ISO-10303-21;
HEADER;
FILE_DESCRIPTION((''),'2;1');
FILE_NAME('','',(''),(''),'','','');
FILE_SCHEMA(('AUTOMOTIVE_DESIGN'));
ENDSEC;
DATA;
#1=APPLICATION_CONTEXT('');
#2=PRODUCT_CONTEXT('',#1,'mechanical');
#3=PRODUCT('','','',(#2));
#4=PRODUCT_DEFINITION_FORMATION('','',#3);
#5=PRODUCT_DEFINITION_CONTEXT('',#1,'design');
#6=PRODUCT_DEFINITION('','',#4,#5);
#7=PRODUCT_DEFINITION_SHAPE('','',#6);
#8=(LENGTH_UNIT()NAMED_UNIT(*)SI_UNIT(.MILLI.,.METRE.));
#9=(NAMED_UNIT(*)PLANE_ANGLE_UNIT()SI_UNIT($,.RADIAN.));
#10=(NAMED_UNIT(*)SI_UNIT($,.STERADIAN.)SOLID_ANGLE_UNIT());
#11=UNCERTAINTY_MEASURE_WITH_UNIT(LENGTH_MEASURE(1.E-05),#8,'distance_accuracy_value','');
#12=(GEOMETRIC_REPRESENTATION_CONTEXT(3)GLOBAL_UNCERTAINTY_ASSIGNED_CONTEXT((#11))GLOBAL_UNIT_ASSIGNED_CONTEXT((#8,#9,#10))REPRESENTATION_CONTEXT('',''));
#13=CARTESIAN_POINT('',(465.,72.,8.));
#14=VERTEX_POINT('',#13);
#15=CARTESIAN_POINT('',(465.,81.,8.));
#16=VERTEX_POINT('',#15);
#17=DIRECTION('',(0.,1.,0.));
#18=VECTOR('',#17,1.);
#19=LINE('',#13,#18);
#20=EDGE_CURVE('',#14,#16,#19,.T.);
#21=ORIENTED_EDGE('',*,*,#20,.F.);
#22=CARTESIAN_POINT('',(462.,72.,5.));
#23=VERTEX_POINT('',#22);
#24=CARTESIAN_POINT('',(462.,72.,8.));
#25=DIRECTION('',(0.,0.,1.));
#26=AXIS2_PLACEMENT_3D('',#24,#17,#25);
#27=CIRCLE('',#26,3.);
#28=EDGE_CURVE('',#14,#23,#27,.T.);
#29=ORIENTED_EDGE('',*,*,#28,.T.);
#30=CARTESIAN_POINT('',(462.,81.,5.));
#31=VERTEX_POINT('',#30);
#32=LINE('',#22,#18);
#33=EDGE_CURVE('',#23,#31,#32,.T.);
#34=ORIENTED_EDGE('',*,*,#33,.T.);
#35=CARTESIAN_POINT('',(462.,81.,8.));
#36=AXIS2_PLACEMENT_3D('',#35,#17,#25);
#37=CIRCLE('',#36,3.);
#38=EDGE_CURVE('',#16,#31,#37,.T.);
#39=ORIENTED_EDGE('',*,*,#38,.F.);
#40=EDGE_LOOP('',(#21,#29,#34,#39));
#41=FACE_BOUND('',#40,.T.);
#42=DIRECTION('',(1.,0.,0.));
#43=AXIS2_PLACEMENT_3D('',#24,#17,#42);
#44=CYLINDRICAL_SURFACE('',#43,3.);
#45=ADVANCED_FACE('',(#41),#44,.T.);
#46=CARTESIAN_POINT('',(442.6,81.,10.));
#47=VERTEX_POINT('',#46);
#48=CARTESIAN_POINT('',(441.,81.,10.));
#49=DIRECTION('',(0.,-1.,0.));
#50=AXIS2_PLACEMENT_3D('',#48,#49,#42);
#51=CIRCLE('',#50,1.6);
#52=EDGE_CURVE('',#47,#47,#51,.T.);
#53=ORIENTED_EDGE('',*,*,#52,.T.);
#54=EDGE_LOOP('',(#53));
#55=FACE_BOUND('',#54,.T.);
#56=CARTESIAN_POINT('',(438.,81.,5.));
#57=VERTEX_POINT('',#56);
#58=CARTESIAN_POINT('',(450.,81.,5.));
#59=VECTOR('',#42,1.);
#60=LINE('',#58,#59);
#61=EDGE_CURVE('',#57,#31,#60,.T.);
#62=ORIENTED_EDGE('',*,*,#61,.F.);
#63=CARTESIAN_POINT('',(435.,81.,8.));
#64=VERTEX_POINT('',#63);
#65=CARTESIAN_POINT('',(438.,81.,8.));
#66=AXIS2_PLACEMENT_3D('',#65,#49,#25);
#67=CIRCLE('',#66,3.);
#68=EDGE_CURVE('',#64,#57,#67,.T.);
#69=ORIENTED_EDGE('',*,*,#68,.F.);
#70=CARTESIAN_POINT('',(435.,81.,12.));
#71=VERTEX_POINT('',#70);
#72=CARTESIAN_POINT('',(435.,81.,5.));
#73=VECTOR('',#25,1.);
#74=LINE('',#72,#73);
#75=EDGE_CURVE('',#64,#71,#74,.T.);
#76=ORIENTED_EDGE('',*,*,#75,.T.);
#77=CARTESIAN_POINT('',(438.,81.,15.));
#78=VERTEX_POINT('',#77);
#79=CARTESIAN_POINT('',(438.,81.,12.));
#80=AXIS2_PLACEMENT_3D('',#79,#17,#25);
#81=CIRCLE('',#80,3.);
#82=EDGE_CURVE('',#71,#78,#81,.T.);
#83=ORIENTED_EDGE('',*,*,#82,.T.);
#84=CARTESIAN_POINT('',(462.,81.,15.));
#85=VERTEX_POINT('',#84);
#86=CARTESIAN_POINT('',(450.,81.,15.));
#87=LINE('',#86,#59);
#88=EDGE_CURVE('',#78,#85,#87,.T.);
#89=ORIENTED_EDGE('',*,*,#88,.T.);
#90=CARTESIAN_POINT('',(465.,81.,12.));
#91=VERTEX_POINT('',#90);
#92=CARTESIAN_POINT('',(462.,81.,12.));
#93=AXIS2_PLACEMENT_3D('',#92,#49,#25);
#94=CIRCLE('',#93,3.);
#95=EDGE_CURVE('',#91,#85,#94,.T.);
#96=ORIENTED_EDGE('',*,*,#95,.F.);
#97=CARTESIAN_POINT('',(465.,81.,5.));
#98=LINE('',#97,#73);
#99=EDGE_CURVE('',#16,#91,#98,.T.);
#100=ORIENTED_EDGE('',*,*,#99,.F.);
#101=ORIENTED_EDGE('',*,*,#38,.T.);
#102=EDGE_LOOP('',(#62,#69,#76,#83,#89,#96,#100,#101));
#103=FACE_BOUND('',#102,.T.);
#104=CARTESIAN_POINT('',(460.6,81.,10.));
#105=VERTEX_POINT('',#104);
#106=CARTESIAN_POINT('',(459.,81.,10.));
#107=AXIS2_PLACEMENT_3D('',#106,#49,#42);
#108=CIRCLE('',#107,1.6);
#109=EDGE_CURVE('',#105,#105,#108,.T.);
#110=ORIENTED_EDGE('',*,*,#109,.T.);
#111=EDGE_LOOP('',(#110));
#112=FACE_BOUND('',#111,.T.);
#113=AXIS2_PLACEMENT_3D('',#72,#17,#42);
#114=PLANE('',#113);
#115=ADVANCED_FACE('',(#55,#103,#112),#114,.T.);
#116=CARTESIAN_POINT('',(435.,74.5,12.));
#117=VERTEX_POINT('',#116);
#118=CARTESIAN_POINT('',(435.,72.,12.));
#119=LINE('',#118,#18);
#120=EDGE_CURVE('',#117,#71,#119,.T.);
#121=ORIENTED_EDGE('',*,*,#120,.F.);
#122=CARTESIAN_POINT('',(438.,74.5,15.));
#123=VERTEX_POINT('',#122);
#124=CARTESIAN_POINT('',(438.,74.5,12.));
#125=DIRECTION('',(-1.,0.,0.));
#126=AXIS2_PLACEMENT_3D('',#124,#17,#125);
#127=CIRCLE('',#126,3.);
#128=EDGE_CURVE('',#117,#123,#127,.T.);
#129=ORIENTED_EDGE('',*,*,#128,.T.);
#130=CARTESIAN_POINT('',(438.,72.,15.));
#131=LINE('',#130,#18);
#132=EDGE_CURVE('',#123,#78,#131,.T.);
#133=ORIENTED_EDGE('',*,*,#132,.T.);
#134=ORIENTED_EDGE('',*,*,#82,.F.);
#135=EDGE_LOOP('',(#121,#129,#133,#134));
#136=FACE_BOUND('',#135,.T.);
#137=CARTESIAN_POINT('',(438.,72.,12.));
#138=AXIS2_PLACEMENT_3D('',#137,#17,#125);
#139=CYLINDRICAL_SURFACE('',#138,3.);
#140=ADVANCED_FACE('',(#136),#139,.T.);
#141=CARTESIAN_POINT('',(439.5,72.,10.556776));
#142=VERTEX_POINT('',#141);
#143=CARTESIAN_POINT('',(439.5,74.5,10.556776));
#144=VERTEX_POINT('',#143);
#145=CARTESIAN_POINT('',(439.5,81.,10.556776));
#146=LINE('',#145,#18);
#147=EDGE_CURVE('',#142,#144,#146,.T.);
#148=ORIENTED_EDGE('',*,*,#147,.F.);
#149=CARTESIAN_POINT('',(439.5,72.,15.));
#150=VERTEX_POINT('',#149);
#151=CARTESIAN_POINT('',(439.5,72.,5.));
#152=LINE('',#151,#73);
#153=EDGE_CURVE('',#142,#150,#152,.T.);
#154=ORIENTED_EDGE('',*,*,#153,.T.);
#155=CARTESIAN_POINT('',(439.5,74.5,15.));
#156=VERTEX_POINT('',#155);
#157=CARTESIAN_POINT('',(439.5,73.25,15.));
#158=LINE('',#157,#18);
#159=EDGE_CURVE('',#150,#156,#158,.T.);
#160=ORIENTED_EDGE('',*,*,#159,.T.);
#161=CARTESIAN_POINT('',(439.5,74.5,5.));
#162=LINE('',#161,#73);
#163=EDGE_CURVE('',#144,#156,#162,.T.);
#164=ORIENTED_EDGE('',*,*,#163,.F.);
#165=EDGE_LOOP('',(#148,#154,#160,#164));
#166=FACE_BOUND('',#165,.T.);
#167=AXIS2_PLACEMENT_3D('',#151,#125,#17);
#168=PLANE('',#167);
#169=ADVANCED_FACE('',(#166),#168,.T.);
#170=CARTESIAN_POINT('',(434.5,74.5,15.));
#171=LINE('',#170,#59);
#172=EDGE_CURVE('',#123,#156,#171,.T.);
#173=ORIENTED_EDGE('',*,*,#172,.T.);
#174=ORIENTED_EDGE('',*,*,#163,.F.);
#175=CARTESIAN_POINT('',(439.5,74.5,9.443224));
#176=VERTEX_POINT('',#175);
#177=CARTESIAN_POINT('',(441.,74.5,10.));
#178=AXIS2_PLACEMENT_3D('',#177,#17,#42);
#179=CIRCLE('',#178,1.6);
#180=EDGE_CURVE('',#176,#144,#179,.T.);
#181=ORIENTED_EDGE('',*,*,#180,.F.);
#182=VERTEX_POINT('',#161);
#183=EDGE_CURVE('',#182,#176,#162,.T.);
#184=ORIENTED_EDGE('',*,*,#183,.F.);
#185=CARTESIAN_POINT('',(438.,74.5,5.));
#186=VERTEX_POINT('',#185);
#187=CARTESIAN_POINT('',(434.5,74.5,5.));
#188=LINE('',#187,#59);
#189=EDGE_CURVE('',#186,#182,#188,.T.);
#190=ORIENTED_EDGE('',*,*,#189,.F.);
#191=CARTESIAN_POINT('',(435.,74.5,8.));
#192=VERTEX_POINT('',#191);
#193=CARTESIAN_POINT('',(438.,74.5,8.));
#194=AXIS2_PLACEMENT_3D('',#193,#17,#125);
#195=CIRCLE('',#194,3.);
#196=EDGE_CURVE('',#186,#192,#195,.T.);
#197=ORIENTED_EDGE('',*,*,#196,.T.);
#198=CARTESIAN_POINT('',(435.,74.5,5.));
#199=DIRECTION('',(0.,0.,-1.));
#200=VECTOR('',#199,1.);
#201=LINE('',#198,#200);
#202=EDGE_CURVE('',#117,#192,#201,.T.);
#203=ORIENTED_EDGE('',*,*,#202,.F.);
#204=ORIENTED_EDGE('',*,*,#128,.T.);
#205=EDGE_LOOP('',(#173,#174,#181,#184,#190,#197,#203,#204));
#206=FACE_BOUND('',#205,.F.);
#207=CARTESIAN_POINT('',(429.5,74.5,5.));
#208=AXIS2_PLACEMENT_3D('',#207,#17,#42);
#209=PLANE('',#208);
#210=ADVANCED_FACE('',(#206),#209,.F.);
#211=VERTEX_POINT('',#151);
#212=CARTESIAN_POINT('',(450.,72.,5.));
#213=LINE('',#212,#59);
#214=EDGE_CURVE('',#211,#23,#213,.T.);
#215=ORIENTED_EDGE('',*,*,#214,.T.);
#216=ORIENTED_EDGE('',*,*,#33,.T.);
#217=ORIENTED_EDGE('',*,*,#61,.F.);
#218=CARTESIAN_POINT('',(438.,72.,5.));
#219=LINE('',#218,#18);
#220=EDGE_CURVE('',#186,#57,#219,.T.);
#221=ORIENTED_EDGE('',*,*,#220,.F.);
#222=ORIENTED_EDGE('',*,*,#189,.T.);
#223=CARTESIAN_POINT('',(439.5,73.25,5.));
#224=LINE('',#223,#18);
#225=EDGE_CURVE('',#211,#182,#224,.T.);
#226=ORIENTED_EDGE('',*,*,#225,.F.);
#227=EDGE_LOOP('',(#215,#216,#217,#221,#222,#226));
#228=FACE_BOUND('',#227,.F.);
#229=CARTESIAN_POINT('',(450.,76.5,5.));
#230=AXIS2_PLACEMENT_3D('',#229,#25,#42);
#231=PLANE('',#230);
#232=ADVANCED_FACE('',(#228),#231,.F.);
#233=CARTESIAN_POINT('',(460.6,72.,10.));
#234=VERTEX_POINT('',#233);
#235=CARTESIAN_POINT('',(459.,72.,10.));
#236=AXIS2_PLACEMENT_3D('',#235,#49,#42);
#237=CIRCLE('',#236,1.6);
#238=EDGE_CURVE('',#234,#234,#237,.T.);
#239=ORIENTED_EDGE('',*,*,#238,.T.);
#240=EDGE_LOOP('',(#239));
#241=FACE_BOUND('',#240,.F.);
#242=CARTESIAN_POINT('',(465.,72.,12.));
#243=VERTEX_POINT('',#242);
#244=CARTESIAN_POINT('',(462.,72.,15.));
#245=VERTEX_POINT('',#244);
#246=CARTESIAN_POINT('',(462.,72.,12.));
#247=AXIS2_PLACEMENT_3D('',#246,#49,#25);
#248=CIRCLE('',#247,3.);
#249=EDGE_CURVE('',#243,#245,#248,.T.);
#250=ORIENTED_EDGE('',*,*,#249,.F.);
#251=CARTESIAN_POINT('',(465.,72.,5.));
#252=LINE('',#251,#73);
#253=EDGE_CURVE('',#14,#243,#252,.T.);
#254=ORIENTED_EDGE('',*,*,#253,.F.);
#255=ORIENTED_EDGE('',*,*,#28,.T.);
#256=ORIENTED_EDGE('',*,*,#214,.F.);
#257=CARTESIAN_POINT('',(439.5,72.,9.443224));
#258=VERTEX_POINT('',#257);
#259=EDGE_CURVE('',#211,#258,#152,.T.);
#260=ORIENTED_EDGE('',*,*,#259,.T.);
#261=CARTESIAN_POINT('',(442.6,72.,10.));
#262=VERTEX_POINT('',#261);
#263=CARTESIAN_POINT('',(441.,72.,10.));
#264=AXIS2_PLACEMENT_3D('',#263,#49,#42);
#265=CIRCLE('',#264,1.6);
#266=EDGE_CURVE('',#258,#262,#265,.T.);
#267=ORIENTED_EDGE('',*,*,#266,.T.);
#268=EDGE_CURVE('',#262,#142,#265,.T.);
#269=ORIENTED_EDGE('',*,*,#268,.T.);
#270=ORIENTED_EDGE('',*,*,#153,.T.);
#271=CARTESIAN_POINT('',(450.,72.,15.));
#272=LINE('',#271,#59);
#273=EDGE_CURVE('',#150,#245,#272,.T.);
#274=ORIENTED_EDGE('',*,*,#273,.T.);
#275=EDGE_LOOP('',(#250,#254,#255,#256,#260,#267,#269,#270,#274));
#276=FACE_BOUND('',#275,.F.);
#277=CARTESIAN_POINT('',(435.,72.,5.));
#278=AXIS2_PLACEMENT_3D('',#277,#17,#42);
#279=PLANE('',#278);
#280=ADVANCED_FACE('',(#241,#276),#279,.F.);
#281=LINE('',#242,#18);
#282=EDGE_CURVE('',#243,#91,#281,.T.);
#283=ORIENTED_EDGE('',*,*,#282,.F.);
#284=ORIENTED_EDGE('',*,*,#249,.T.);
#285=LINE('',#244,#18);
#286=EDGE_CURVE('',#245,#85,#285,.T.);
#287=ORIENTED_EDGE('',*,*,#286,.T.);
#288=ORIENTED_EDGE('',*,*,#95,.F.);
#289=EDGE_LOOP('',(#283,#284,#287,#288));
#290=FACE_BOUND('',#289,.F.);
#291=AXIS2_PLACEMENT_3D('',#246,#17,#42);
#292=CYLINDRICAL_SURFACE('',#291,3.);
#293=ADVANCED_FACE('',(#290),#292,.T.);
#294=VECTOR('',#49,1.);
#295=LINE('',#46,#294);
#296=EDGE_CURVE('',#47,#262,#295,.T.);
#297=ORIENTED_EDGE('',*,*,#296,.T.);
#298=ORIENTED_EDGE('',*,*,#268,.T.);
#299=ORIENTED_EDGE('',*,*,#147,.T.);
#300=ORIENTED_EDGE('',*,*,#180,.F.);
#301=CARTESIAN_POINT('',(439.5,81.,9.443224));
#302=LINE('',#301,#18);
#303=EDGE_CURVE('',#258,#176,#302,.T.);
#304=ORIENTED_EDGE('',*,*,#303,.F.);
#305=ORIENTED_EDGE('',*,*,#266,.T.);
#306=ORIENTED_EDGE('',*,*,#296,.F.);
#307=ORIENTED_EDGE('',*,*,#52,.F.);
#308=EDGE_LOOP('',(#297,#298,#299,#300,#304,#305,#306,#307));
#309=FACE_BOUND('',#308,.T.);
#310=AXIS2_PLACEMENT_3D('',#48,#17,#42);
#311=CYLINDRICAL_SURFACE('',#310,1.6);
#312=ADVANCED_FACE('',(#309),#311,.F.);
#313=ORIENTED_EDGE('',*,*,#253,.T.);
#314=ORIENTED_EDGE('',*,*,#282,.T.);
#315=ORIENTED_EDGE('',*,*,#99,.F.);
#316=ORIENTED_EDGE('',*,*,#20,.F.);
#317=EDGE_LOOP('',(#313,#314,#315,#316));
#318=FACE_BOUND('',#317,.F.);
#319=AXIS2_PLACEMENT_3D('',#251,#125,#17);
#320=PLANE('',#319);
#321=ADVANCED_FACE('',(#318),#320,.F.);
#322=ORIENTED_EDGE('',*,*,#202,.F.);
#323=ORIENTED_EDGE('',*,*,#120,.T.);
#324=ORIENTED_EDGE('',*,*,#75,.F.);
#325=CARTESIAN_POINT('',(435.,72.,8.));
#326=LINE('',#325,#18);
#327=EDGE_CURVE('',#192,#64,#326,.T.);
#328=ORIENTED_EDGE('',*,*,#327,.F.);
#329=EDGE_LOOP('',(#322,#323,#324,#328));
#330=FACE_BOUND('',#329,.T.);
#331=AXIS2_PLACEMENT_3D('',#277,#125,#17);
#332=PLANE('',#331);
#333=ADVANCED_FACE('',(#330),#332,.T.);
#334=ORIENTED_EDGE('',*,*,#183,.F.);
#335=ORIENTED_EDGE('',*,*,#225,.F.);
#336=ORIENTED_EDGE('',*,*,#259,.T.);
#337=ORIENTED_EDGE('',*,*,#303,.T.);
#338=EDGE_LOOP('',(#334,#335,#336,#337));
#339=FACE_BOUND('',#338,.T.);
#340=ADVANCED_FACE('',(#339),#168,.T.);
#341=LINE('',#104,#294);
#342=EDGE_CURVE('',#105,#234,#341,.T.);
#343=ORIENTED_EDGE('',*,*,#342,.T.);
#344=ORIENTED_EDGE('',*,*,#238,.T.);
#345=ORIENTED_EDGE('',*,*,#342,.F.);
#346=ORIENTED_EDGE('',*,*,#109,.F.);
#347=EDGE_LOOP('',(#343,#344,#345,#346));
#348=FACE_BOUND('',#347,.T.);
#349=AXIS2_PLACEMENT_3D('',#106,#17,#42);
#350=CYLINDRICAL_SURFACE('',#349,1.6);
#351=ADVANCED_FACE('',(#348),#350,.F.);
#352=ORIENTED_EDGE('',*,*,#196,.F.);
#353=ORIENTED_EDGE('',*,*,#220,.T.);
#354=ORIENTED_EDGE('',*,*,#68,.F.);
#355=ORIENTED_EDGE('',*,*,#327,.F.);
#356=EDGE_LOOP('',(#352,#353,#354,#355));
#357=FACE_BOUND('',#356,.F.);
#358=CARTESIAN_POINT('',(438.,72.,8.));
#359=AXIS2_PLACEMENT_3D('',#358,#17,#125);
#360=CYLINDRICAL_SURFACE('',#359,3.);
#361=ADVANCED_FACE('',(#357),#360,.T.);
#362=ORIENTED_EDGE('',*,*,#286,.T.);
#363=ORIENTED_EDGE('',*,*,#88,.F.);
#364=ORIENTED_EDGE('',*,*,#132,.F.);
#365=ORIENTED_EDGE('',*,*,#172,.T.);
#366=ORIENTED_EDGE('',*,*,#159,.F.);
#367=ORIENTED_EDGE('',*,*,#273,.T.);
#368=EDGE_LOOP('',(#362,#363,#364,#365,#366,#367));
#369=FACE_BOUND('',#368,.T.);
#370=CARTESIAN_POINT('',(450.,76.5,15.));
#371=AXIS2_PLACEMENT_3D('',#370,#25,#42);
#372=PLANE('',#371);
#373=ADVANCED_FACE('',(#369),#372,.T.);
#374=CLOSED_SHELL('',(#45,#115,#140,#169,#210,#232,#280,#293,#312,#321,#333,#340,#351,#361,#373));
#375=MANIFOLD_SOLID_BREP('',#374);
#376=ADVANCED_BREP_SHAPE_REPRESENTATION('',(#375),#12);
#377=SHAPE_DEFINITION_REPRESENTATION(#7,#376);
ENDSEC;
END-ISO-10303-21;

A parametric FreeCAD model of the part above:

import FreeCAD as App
import Part
import Sketcher
from FreeCAD import Vector
Q = App.Units.Quantity


def edges_at(feature, points):
    """Names of the edges that pass closest to the given points."""
    edges = feature.Shape.Edges
    near = lambda p: min(range(len(edges)), key=lambda i: edges[i].distToShape(Part.Vertex(*p))[0])
    return sorted({f"Edge{near(p) + 1}" for p in points})


def add_polygon(sketch, points):
    """Adds a closed chain of lines whose ends are joined by coincident constraints."""
    first, n = sketch.GeometryCount, len(points)
    for a, b in zip(points, points[1:] + points[:1]):
        sketch.addGeometry(Part.LineSegment(App.Vector(*a, 0), App.Vector(*b, 0)), False)
    for i in range(n):
        sketch.addConstraint(Sketcher.Constraint("Coincident", first + i, 2, first + (i + 1) % n, 1))

doc = App.newDocument("Part")
body = doc.addObject("PartDesign::Body", "Body")

# Sketch on XY plane
sketch1 = body.newObject("Sketcher::SketchObject", "Sketch")
sketch1.AttachmentSupport = (doc.getObject("XY_Plane"), [""])
sketch1.MapMode = "FlatFace"
sketch1.AttachmentOffset = App.Placement(Vector(0, 0, 5), App.Rotation())
add_polygon(sketch1, [(429.5, 74.5), (429.5, 72), (439.5, 72), (439.5, 74.5)])  # lines 0-3
sketch1.addConstraint([
    Sketcher.Constraint("Vertical", 0),
    Sketcher.Constraint("Horizontal", 1),
    Sketcher.Constraint("Vertical", 2),
    Sketcher.Constraint("Horizontal", 3),
    Sketcher.Constraint("DistanceX", 1, 1, 1, 2, Q("10 mm")),
    Sketcher.Constraint("DistanceY", 0, 2, 0, 1, Q("2.5 mm")),
    Sketcher.Constraint("DistanceY", -1, 1, 0, 2, Q("72 mm")),
    Sketcher.Constraint("DistanceX", -1, 1, 0, 2, Q("429.5 mm")),
])
pad1 = body.newObject("PartDesign::Pad", "Pad")
pad1.Profile = sketch1
pad1.Length = 10
body2 = doc.addObject("PartDesign::Body", "Body001")

# Sketch on XZ plane
sketch2 = body2.newObject("Sketcher::SketchObject", "Sketch001")
sketch2.AttachmentSupport = (doc.getObject("XZ_Plane001"), [""])
sketch2.MapMode = "FlatFace"
sketch2.AttachmentOffset = App.Placement(Vector(0, 0, 5), App.Rotation())
sketch2.addGeometry(Part.Circle(Vector(555, 10, 0), Vector(0, 0, 1), 1.6), False)
sketch2.addConstraint([
    Sketcher.Constraint("Diameter", 0, Q("3.2 mm")),
    Sketcher.Constraint("DistanceX", -1, 1, 0, 3, Q("555 mm")),
    Sketcher.Constraint("DistanceY", -1, 1, 0, 3, Q("10 mm")),
])
pad2 = body2.newObject("PartDesign::Pad", "Pad001")
pad2.Profile = sketch2
pad2.Length = 9
body3 = doc.addObject("PartDesign::Body", "Body002")
body3.AllowCompound = True

# Sketch on XZ plane
sketch3 = body3.newObject("Sketcher::SketchObject", "Sketch002")
sketch3.AttachmentSupport = (doc.getObject("XZ_Plane002"), [""])
sketch3.MapMode = "FlatFace"
sketch3.AttachmentOffset = App.Placement(Vector(0, 0, 5), App.Rotation())
sketch3.addGeometry(Part.Circle(Vector(450, 10, 0), Vector(0, 0, 1), 1.6), False)
sketch3.addConstraint([
    Sketcher.Constraint("Diameter", 0, Q("3.2 mm")),
    Sketcher.Constraint("DistanceX", -1, 1, 0, 3, Q("450 mm")),
    Sketcher.Constraint("DistanceY", -1, 1, 0, 3, Q("10 mm")),
])
pad3 = body3.newObject("PartDesign::Pad", "Pad002")
pad3.Profile = sketch3
pad3.Length = 9
doc.recompute()

boolean = body3.newObject("PartDesign::Boolean", "Boolean")
boolean.Type = "Fuse"
boolean.addObjects([body2])
body4 = doc.addObject("PartDesign::Body", "Body003")
body4.AllowCompound = True
doc.recompute()

body3.Placement = App.Placement(Vector(-9, 5, 0), App.Rotation(Vector(0, 0, 1), 0))
boolean2 = body4.newObject("PartDesign::Boolean", "Boolean001")
boolean2.Type = "Fuse"
boolean2.addObjects([body3])
body5 = doc.addObject("PartDesign::Body", "Body004")

# Sketch on XZ plane
sketch4 = body5.newObject("Sketcher::SketchObject", "Sketch003")
sketch4.AttachmentSupport = (doc.getObject("XZ_Plane004"), [""])
sketch4.MapMode = "FlatFace"
sketch4.AttachmentOffset = App.Placement(Vector(0, 0, 5), App.Rotation())
sketch4.addGeometry(Part.Circle(Vector(555, 10, 0), Vector(0, 0, 1), 1.6), False)
sketch4.addConstraint([
    Sketcher.Constraint("Diameter", 0, Q("3.2 mm")),
    Sketcher.Constraint("DistanceX", -1, 1, 0, 3, Q("555 mm")),
    Sketcher.Constraint("DistanceY", -1, 1, 0, 3, Q("10 mm")),
])
pad4 = body5.newObject("PartDesign::Pad", "Pad003")
pad4.Profile = sketch4
pad4.Length = 9
body6 = doc.addObject("PartDesign::Body", "Body005")
body6.AllowCompound = True

# Sketch on XZ plane
sketch5 = body6.newObject("Sketcher::SketchObject", "Sketch004")
sketch5.AttachmentSupport = (doc.getObject("XZ_Plane005"), [""])
sketch5.MapMode = "FlatFace"
sketch5.AttachmentOffset = App.Placement(Vector(0, 0, 5), App.Rotation())
sketch5.addGeometry(Part.Circle(Vector(450, 10, 0), Vector(0, 0, 1), 1.6), False)
sketch5.addConstraint([
    Sketcher.Constraint("Diameter", 0, Q("3.2 mm")),
    Sketcher.Constraint("DistanceX", -1, 1, 0, 3, Q("450 mm")),
    Sketcher.Constraint("DistanceY", -1, 1, 0, 3, Q("10 mm")),
])
pad5 = body6.newObject("PartDesign::Pad", "Pad004")
pad5.Profile = sketch5
pad5.Length = 9
doc.recompute()

boolean3 = body6.newObject("PartDesign::Boolean", "Boolean002")
boolean3.Type = "Fuse"
boolean3.addObjects([body5])
body7 = doc.addObject("PartDesign::Body", "Body006")
body7.AllowCompound = True
doc.recompute()

body6.Placement = App.Placement(Vector(9, 5, 0), App.Rotation(Vector(0, 0, 1), 0))
boolean4 = body7.newObject("PartDesign::Boolean", "Boolean003")
boolean4.Type = "Fuse"
boolean4.addObjects([body6])
doc.recompute()

boolean5 = body7.newObject("PartDesign::Boolean", "Boolean004")
boolean5.Type = "Fuse"
boolean5.addObjects([body4])
body8 = doc.addObject("PartDesign::Body", "Body007")

# Sketch on XY plane
sketch6 = body8.newObject("Sketcher::SketchObject", "Sketch005")
sketch6.AttachmentSupport = (doc.getObject("XY_Plane007"), [""])
sketch6.MapMode = "FlatFace"
sketch6.AttachmentOffset = App.Placement(Vector(0, 0, 5), App.Rotation())
add_polygon(sketch6, [(435, 0), (435, -9), (465, -9), (465, 0)])  # lines 0-3
sketch6.addConstraint([
    Sketcher.Constraint("Vertical", 0),
    Sketcher.Constraint("Horizontal", 1),
    Sketcher.Constraint("Vertical", 2),
    Sketcher.Constraint("Horizontal", 3),
    Sketcher.Constraint("PointOnObject", 2, 2, -1),
    Sketcher.Constraint("DistanceX", 1, 1, 1, 2, Q("30 mm")),
    Sketcher.Constraint("DistanceY", 0, 2, 0, 1, Q("9 mm")),
    Sketcher.Constraint("DistanceX", -1, 1, 0, 2, Q("435 mm")),
])
pad6 = body8.newObject("PartDesign::Pad", "Pad005")
pad6.Profile = sketch6
pad6.Length = 10
doc.recompute()

fillet = body8.newObject("PartDesign::Fillet", "Fillet")
fillet.Base = (pad6, edges_at(pad6, [
    (435, -4.5, 15),
    (435, -4.5, 5),
    (465, -4.5, 15),
    (465, -4.5, 5),
]))
fillet.Radius = 3
doc.recompute()

boolean6 = body8.newObject("PartDesign::Boolean", "Boolean005")
boolean6.Type = "Cut"
boolean6.addObjects([body7])
body9 = doc.addObject("PartDesign::Body", "Body008")
doc.recompute()

body8.Placement = App.Placement(Vector(0, 81, 0), App.Rotation(Vector(0, 0, 1), 0))
boolean7 = body9.newObject("PartDesign::Boolean", "Boolean006")
boolean7.Type = "Fuse"
boolean7.addObjects([body8])
doc.recompute()

boolean8 = body9.newObject("PartDesign::Boolean", "Boolean007")
boolean8.Type = "Cut"
boolean8.addObjects([body])

doc.recompute()
